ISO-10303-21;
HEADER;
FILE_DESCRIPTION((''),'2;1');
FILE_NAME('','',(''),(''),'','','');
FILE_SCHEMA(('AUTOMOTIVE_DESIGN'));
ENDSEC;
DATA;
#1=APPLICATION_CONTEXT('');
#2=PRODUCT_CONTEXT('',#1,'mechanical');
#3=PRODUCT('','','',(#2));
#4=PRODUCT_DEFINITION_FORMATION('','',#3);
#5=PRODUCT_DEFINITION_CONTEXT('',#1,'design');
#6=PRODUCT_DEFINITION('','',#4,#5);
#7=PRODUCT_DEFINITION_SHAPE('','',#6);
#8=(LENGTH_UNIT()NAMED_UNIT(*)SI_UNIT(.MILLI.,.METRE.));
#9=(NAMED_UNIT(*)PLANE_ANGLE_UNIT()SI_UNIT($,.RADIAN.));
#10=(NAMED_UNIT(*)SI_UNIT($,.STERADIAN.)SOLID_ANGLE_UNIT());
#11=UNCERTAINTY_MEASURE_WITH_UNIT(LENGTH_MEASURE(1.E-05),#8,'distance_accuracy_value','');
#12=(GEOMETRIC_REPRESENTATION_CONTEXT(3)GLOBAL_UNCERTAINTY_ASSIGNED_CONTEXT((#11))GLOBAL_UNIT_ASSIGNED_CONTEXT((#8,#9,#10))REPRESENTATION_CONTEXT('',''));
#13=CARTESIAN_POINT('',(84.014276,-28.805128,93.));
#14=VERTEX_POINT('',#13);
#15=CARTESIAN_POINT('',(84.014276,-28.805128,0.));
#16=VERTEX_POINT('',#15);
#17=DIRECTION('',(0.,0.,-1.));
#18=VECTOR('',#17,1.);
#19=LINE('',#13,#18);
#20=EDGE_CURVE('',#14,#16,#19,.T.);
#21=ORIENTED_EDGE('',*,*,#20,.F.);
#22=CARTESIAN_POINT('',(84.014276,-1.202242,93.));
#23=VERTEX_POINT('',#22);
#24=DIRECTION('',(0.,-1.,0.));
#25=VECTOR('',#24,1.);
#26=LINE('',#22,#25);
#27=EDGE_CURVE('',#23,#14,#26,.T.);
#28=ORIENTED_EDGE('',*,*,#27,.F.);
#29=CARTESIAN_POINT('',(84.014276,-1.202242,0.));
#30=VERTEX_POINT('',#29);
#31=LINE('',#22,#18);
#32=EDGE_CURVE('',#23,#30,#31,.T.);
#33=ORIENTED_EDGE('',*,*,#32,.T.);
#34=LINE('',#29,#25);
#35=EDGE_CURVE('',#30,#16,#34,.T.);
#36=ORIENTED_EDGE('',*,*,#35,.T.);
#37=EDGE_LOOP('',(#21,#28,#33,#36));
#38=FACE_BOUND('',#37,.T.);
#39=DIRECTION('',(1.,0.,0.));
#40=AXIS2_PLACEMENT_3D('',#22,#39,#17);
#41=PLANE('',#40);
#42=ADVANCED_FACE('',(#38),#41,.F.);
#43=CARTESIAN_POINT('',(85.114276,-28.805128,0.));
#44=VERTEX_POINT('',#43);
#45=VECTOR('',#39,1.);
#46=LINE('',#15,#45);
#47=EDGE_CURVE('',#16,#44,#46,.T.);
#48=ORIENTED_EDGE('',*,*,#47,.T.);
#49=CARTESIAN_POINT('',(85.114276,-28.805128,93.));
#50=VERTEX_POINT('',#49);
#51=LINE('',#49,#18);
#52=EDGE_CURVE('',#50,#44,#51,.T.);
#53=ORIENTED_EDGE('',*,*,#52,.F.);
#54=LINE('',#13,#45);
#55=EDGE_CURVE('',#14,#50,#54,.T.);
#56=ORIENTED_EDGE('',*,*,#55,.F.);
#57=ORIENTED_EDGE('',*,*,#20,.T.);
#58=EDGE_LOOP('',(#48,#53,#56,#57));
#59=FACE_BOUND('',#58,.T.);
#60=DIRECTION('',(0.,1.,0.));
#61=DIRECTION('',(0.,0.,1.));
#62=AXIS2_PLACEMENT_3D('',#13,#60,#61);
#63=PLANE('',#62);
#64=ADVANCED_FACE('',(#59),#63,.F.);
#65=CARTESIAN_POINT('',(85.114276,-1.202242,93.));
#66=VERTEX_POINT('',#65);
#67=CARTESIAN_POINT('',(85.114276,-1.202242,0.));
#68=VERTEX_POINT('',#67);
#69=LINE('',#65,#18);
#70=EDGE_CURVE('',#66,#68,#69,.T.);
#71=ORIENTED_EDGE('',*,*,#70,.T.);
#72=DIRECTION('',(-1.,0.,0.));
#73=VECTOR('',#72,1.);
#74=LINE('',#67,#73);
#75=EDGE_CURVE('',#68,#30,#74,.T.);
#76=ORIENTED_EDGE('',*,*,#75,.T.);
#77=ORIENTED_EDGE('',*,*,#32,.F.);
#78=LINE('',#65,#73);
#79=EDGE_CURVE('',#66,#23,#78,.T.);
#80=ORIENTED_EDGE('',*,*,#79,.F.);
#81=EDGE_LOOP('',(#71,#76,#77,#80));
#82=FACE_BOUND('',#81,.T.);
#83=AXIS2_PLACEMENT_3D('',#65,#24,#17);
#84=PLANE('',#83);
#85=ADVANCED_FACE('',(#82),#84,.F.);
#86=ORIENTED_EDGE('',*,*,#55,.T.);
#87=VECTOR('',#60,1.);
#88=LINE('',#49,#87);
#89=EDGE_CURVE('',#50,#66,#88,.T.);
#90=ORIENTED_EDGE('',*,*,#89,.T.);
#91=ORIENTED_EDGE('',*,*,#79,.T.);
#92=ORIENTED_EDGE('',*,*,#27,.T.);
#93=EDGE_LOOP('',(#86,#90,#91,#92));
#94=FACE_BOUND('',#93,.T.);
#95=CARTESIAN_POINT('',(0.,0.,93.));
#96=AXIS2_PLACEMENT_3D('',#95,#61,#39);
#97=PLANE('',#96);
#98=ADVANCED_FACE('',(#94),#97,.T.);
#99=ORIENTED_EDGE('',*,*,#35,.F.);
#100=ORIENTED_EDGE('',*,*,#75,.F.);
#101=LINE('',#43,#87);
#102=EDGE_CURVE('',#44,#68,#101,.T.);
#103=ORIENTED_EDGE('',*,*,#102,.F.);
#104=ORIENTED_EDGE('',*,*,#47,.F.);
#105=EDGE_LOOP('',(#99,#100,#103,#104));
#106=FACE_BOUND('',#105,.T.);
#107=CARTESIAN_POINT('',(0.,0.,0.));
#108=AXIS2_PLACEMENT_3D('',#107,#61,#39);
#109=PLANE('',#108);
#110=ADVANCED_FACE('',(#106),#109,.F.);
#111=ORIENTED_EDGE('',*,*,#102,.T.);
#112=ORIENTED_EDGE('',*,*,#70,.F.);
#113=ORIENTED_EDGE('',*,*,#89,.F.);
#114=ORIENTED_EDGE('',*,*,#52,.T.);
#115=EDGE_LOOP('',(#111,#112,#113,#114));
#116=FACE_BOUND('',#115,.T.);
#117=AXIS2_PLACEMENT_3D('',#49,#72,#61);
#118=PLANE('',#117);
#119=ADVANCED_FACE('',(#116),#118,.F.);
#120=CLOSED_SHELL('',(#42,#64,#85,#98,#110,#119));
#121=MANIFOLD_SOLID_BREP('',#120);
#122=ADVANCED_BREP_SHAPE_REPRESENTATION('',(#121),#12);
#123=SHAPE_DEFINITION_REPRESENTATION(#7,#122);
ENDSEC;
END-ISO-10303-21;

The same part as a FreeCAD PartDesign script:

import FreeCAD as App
import Part
import Sketcher
Q = App.Units.Quantity


def add_polygon(sketch, points):
    """Adds a closed chain of lines whose ends are joined by coincident constraints."""
    first, n = sketch.GeometryCount, len(points)
    for a, b in zip(points, points[1:] + points[:1]):
        sketch.addGeometry(Part.LineSegment(App.Vector(*a, 0), App.Vector(*b, 0)), False)
    for i in range(n):
        sketch.addConstraint(Sketcher.Constraint("Coincident", first + i, 2, first + (i + 1) % n, 1))

doc = App.newDocument("Part")
body = doc.addObject("PartDesign::Body", "Body")

# Sketch on XY plane
sketch1 = doc.addObject("Sketcher::SketchObject", "Sketch")
body.addObject(sketch1)
sketch1.AttachmentSupport = (doc.XY_Plane, [""])
sketch1.MapMode = "FlatFace"
add_polygon(sketch1, [(84, -1.2), (84, -28.8), (85.1, -28.8), (85.1, -1.2)])  # lines 0-3
sketch1.addConstraint(Sketcher.Constraint("Vertical", 0))
sketch1.addConstraint(Sketcher.Constraint("Horizontal", 1))
sketch1.addConstraint(Sketcher.Constraint("Vertical", 2))
sketch1.addConstraint(Sketcher.Constraint("Horizontal", 3))
sketch1.addConstraint(Sketcher.Constraint("DistanceX", 1, 1, 1, 2, Q("1.1 mm")))
sketch1.addConstraint(Sketcher.Constraint("DistanceY", 0, 2, 0, 1, Q("27.602886 mm")))
sketch1.addConstraint(Sketcher.Constraint("DistanceY", 2, 2, -1, 1, Q("1.202242 mm")))
sketch1.addConstraint(Sketcher.Constraint("DistanceX", -1, 1, 0, 2, Q("84.014276 mm")))
pad1 = doc.addObject("PartDesign::Pad", "Pad")
body.addObject(pad1)
pad1.Profile = sketch1
pad1.Length = 93

doc.recompute()
